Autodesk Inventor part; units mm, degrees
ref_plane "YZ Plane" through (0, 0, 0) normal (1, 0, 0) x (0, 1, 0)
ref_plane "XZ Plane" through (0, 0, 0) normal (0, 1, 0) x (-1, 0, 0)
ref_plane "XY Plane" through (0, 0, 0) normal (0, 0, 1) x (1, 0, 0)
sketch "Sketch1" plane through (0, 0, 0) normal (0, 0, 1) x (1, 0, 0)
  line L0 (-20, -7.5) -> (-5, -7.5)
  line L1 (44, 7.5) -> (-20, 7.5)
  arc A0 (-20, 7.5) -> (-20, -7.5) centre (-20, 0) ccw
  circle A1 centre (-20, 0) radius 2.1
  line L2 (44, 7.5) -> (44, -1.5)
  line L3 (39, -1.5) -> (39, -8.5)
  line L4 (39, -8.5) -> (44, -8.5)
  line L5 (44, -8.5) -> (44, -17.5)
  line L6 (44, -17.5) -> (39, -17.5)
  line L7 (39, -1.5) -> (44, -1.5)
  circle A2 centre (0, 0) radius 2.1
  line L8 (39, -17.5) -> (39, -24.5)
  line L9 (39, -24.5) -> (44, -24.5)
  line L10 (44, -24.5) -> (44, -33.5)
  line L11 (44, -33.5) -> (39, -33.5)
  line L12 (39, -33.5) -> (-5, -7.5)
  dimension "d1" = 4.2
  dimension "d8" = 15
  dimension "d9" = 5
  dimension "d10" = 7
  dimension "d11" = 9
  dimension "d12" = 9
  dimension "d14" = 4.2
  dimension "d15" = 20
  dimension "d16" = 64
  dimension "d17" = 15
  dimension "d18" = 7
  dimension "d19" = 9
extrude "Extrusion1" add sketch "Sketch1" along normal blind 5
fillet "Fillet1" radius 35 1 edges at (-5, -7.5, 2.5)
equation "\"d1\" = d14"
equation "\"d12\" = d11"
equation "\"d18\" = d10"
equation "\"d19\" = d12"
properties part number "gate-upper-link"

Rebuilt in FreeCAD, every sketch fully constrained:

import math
import FreeCAD as App
import Part
import Sketcher


def edges_at(feature, points):
    """Names of the edges that pass closest to the given points."""
    edges = feature.Shape.Edges
    near = lambda p: min(range(len(edges)), key=lambda i: edges[i].distToShape(Part.Vertex(*p))[0])
    return sorted({f"Edge{near(p) + 1}" for p in points})

doc = App.newDocument("Part")
params = doc.addObject("Spreadsheet::Sheet", "Params")
for row, (alias, value) in enumerate([
    ("sketch1_diameter", "4.2 mm"),
    ("sketch1_radius", "7.5 mm"),
    ("sketch1_width", "15 mm"),
    ("sketch1_width2", "5 mm"),
    ("sketch1_width3", "64 mm"),
    ("pad1_length", "5 mm"),
    ("fillet_radius", "35 mm"),
], start=1):
    params.set(f"A{row}", alias)
    params.set(f"B{row}", "=" + value)
    params.setAlias(f"B{row}", alias)

body = doc.addObject("PartDesign::Body", "Body")

# Sketch on XY plane
sketch1 = body.newObject("Sketcher::SketchObject", "Sketch")
sketch1.AttachmentSupport = (doc.getObject("XY_Plane"), [""])
sketch1.MapMode = "FlatFace"
sketch1.addGeometry([
    Part.ArcOfCircle(Part.Circle(App.Vector(-20, 0, 0), App.Vector(0, 0, 1), 7.5), math.radians(90), math.radians(270)),  # 0
    Part.LineSegment(App.Vector(-20, -7.5, 0), App.Vector(-5, -7.5, 0)),  # 1
    Part.LineSegment(App.Vector(-5, -7.5, 0), App.Vector(39, -33.5, 0)),  # 2
    Part.LineSegment(App.Vector(39, -33.5, 0), App.Vector(44, -33.5, 0)),  # 3
    Part.LineSegment(App.Vector(44, -33.5, 0), App.Vector(44, -24.5, 0)),  # 4
    Part.LineSegment(App.Vector(44, -24.5, 0), App.Vector(39, -24.5, 0)),  # 5
    Part.LineSegment(App.Vector(39, -24.5, 0), App.Vector(39, -17.5, 0)),  # 6
    Part.LineSegment(App.Vector(39, -17.5, 0), App.Vector(44, -17.5, 0)),  # 7
    Part.LineSegment(App.Vector(44, -17.5, 0), App.Vector(44, -8.5, 0)),  # 8
    Part.LineSegment(App.Vector(44, -8.5, 0), App.Vector(39, -8.5, 0)),  # 9
    Part.LineSegment(App.Vector(39, -8.5, 0), App.Vector(39, -1.5, 0)),  # 10
    Part.LineSegment(App.Vector(39, -1.5, 0), App.Vector(44, -1.5, 0)),  # 11
    Part.LineSegment(App.Vector(44, -1.5, 0), App.Vector(44, 7.5, 0)),  # 12
    Part.LineSegment(App.Vector(44, 7.5, 0), App.Vector(-20, 7.5, 0)),  # 13
    Part.Circle(App.Vector(-20, 0, 0), App.Vector(0, 0, 1), 2.1),  # 14
    Part.Circle(App.Vector(0, 0, 0), App.Vector(0, 0, 1), 2.1),  # 15
], False)
sketch1.addConstraint([
    Sketcher.Constraint("Tangent", 0, 2, 1, 1),
    Sketcher.Constraint("Coincident", 1, 2, 2, 1),
    Sketcher.Constraint("Coincident", 2, 2, 3, 1),
    Sketcher.Constraint("Coincident", 3, 2, 4, 1),
    Sketcher.Constraint("Coincident", 4, 2, 5, 1),
    Sketcher.Constraint("Coincident", 5, 2, 6, 1),
    Sketcher.Constraint("Coincident", 6, 2, 7, 1),
    Sketcher.Constraint("Coincident", 7, 2, 8, 1),
    Sketcher.Constraint("Coincident", 8, 2, 9, 1),
    Sketcher.Constraint("Coincident", 9, 2, 10, 1),
    Sketcher.Constraint("Coincident", 10, 2, 11, 1),
    Sketcher.Constraint("Coincident", 11, 2, 12, 1),
    Sketcher.Constraint("Coincident", 12, 2, 13, 1),
    Sketcher.Constraint("Tangent", 13, 2, 0, 1),
    Sketcher.Constraint("Horizontal", 1),
    Sketcher.Constraint("Horizontal", 3),
    Sketcher.Constraint("Vertical", 4),
    Sketcher.Constraint("Horizontal", 5),
    Sketcher.Constraint("Vertical", 6),
    Sketcher.Constraint("Horizontal", 7),
    Sketcher.Constraint("Vertical", 8),
    Sketcher.Constraint("Horizontal", 9),
    Sketcher.Constraint("Vertical", 10),
    Sketcher.Constraint("Horizontal", 11),
    Sketcher.Constraint("Vertical", 12),
    Sketcher.Constraint("Horizontal", 13),
    Sketcher.Constraint("Coincident", 15, 3, -1, 1),
    Sketcher.Constraint("Coincident", 14, 3, 0, 3),
    Sketcher.Constraint("Equal", 14, 15),
    Sketcher.Constraint("PointOnObject", 0, 3, -1),
    Sketcher.Constraint("Vertical", 2, 2, 5, 2),
    Sketcher.Constraint("Vertical", 4, 2, 7, 2),
    Sketcher.Constraint("Vertical", 6, 2, 9, 2),
    Sketcher.Constraint("Vertical", 8, 2, 11, 2),
    Sketcher.Constraint("Equal", 4, 8),
    Sketcher.Constraint("Equal", 6, 10),
    Sketcher.Constraint("Equal", 8, 12),
    Sketcher.Constraint("Diameter", 14, 4.2),
    Sketcher.Constraint("Radius", 0, 7.5),
    Sketcher.Constraint("DistanceX", 1, 1, 1, 2, 15.0),
    Sketcher.Constraint("DistanceX", 3, 1, 3, 2, 5.0),
    Sketcher.Constraint("DistanceX", 13, 2, 13, 1, 64.0),
    Sketcher.Constraint("DistanceY", 4, 1, 4, 2, 9.0),
    Sketcher.Constraint("DistanceY", 6, 1, 6, 2, 7.0),
    Sketcher.Constraint("DistanceX", 0, 3, -1, 1, 20.0),
])
sketch1.setExpression("Constraints[37]", "Params.sketch1_diameter")
sketch1.setExpression("Constraints[38]", "Params.sketch1_radius")
sketch1.setExpression("Constraints[39]", "Params.sketch1_width")
sketch1.setExpression("Constraints[40]", "Params.sketch1_width2")
sketch1.setExpression("Constraints[41]", "Params.sketch1_width3")
pad1 = body.newObject("PartDesign::Pad", "Pad")
pad1.Profile = sketch1
pad1.setExpression("Length", "Params.pad1_length")
doc.recompute()

fillet = body.newObject("PartDesign::Fillet", "Fillet")
fillet.Base = (pad1, edges_at(pad1, [(-5, -7.5, 2.5)]))
fillet.setExpression("Radius", "Params.fillet_radius")

doc.recompute()
